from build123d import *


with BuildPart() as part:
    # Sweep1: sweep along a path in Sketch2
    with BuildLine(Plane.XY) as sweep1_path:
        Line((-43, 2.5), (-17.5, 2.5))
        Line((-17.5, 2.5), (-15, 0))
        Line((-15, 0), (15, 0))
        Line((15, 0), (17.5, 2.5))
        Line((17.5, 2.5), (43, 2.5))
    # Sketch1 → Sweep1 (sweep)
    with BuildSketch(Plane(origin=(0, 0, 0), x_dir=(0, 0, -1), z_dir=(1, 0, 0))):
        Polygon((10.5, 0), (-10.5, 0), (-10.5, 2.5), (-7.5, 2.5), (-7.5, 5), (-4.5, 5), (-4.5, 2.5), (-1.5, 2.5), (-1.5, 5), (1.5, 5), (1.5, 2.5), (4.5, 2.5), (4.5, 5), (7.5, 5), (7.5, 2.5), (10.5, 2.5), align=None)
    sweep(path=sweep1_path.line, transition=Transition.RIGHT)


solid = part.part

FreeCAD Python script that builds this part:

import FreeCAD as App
import Part
import Sketcher

V = App.Vector

doc = App.newDocument("Part")
body = doc.addObject("PartDesign::Body", "Body")

sketch1 = body.newObject("Sketcher::SketchObject", "Sketch")
sketch1.AttachmentSupport = (doc.getObject("YZ_Plane"), [""])
sketch1.MapMode = "FlatFace"
sketch1.addGeometry([
    Part.LineSegment(V(0, 10.5, 0), V(0, -10.5, 0)),
    Part.LineSegment(V(0, -10.5, 0), V(2.5, -10.5, 0)),
    Part.LineSegment(V(2.5, -10.5, 0), V(2.5, -7.5, 0)),
    Part.LineSegment(V(2.5, -7.5, 0), V(5, -7.5, 0)),
    Part.LineSegment(V(5, -7.5, 0), V(5, -4.5, 0)),
    Part.LineSegment(V(5, -4.5, 0), V(2.5, -4.5, 0)),
    Part.LineSegment(V(2.5, -4.5, 0), V(2.5, -1.5, 0)),
    Part.LineSegment(V(2.5, -1.5, 0), V(5, -1.5, 0)),
    Part.LineSegment(V(5, -1.5, 0), V(5, 1.5, 0)),
    Part.LineSegment(V(5, 1.5, 0), V(2.5, 1.5, 0)),
    Part.LineSegment(V(2.5, 1.5, 0), V(2.5, 4.5, 0)),
    Part.LineSegment(V(2.5, 4.5, 0), V(5, 4.5, 0)),
    Part.LineSegment(V(5, 4.5, 0), V(5, 7.5, 0)),
    Part.LineSegment(V(5, 7.5, 0), V(2.5, 7.5, 0)),
    Part.LineSegment(V(2.5, 7.5, 0), V(2.5, 10.5, 0)),
    Part.LineSegment(V(2.5, 10.5, 0), V(0, 10.5, 0)),
], False)
sketch1.addConstraint([
    Sketcher.Constraint("Coincident", 0, 2, 1, 1),
    Sketcher.Constraint("Coincident", 1, 2, 2, 1),
    Sketcher.Constraint("Coincident", 2, 2, 3, 1),
    Sketcher.Constraint("Coincident", 3, 2, 4, 1),
    Sketcher.Constraint("Coincident", 4, 2, 5, 1),
    Sketcher.Constraint("Coincident", 5, 2, 6, 1),
    Sketcher.Constraint("Coincident", 6, 2, 7, 1),
    Sketcher.Constraint("Coincident", 7, 2, 8, 1),
    Sketcher.Constraint("Coincident", 8, 2, 9, 1),
    Sketcher.Constraint("Coincident", 9, 2, 10, 1),
    Sketcher.Constraint("Coincident", 10, 2, 11, 1),
    Sketcher.Constraint("Coincident", 11, 2, 12, 1),
    Sketcher.Constraint("Coincident", 12, 2, 13, 1),
    Sketcher.Constraint("Coincident", 13, 2, 14, 1),
    Sketcher.Constraint("Coincident", 14, 2, 15, 1),
    Sketcher.Constraint("Coincident", 15, 2, 0, 1),
    Sketcher.Constraint("Vertical", 0),
    Sketcher.Constraint("Horizontal", 1),
    Sketcher.Constraint("Vertical", 2),
    Sketcher.Constraint("Horizontal", 3),
    Sketcher.Constraint("Vertical", 4),
    Sketcher.Constraint("Horizontal", 5),
    Sketcher.Constraint("Vertical", 6),
    Sketcher.Constraint("Horizontal", 7),
    Sketcher.Constraint("Vertical", 8),
    Sketcher.Constraint("Horizontal", 9),
    Sketcher.Constraint("Vertical", 10),
    Sketcher.Constraint("Horizontal", 11),
    Sketcher.Constraint("Vertical", 12),
    Sketcher.Constraint("Horizontal", 13),
    Sketcher.Constraint("Vertical", 14),
    Sketcher.Constraint("Horizontal", 15),
    Sketcher.Constraint("Symmetric", 0, 2, 15, 2, -1, 1),
    Sketcher.Constraint("Symmetric", 6, 2, 9, 2, -1),
    Sketcher.Constraint("Symmetric", 4, 2, 11, 2, -1),
    Sketcher.Constraint("Symmetric", 2, 2, 13, 2, -1),
    Sketcher.Constraint("Vertical", 2, 2, 5, 2),
    Sketcher.Constraint("Vertical", 4, 2, 7, 2),
    Sketcher.Constraint("Equal", 1, 3),
    Sketcher.Constraint("Equal", 2, 4),
    Sketcher.Constraint("Equal", 4, 6),
    Sketcher.Constraint("Equal", 6, 8),
    Sketcher.Constraint("DistanceY", 0, 2, 0, 1, 21.0),
    Sketcher.Constraint("DistanceX", 1, 1, 1, 2, 2.5),
])

sketch2 = body.newObject("Sketcher::SketchObject", "Sketch001")
sketch2.AttachmentSupport = (doc.getObject("XY_Plane"), [""])
sketch2.MapMode = "FlatFace"
sketch2.addGeometry([
    Part.LineSegment(V(-43, 2.5, 0), V(-17.5, 2.5, 0)),
    Part.LineSegment(V(-17.5, 2.5, 0), V(-15, 0, 0)),
    Part.LineSegment(V(-15, 0, 0), V(15, 0, 0)),
    Part.LineSegment(V(15, 0, 0), V(17.5, 2.5, 0)),
    Part.LineSegment(V(17.5, 2.5, 0), V(43, 2.5, 0)),
], False)
sketch2.addConstraint([
    Sketcher.Constraint("Coincident", 0, 2, 1, 1),
    Sketcher.Constraint("Coincident", 1, 2, 2, 1),
    Sketcher.Constraint("Coincident", 2, 2, 3, 1),
    Sketcher.Constraint("Coincident", 3, 2, 4, 1),
    Sketcher.Constraint("Horizontal", 0),
    Sketcher.Constraint("Horizontal", 2),
    Sketcher.Constraint("Horizontal", 4),
    Sketcher.Constraint("Symmetric", 1, 2, 2, 2, -1, 1),
    Sketcher.Constraint("Symmetric", 0, 2, 3, 2, -2),
    Sketcher.Constraint("Perpendicular", 1, 3),
    Sketcher.Constraint("Equal", 0, 4),
    Sketcher.Constraint("DistanceX", 2, 1, 2, 2, 30.0),
    Sketcher.Constraint("DistanceX", 0, 1, 0, 2, 25.5),
    Sketcher.Constraint("DistanceX", 0, 1, -1, 1, 43.0),
])
doc.recompute()

additivepipe = body.newObject("PartDesign::AdditivePipe", "AdditivePipe")
additivepipe.Profile = sketch1
additivepipe.Spine = (sketch2, ["Edge1", "Edge2", "Edge3", "Edge4", "Edge5"])
additivepipe.Transition = "Right corner"

doc.recompute()
